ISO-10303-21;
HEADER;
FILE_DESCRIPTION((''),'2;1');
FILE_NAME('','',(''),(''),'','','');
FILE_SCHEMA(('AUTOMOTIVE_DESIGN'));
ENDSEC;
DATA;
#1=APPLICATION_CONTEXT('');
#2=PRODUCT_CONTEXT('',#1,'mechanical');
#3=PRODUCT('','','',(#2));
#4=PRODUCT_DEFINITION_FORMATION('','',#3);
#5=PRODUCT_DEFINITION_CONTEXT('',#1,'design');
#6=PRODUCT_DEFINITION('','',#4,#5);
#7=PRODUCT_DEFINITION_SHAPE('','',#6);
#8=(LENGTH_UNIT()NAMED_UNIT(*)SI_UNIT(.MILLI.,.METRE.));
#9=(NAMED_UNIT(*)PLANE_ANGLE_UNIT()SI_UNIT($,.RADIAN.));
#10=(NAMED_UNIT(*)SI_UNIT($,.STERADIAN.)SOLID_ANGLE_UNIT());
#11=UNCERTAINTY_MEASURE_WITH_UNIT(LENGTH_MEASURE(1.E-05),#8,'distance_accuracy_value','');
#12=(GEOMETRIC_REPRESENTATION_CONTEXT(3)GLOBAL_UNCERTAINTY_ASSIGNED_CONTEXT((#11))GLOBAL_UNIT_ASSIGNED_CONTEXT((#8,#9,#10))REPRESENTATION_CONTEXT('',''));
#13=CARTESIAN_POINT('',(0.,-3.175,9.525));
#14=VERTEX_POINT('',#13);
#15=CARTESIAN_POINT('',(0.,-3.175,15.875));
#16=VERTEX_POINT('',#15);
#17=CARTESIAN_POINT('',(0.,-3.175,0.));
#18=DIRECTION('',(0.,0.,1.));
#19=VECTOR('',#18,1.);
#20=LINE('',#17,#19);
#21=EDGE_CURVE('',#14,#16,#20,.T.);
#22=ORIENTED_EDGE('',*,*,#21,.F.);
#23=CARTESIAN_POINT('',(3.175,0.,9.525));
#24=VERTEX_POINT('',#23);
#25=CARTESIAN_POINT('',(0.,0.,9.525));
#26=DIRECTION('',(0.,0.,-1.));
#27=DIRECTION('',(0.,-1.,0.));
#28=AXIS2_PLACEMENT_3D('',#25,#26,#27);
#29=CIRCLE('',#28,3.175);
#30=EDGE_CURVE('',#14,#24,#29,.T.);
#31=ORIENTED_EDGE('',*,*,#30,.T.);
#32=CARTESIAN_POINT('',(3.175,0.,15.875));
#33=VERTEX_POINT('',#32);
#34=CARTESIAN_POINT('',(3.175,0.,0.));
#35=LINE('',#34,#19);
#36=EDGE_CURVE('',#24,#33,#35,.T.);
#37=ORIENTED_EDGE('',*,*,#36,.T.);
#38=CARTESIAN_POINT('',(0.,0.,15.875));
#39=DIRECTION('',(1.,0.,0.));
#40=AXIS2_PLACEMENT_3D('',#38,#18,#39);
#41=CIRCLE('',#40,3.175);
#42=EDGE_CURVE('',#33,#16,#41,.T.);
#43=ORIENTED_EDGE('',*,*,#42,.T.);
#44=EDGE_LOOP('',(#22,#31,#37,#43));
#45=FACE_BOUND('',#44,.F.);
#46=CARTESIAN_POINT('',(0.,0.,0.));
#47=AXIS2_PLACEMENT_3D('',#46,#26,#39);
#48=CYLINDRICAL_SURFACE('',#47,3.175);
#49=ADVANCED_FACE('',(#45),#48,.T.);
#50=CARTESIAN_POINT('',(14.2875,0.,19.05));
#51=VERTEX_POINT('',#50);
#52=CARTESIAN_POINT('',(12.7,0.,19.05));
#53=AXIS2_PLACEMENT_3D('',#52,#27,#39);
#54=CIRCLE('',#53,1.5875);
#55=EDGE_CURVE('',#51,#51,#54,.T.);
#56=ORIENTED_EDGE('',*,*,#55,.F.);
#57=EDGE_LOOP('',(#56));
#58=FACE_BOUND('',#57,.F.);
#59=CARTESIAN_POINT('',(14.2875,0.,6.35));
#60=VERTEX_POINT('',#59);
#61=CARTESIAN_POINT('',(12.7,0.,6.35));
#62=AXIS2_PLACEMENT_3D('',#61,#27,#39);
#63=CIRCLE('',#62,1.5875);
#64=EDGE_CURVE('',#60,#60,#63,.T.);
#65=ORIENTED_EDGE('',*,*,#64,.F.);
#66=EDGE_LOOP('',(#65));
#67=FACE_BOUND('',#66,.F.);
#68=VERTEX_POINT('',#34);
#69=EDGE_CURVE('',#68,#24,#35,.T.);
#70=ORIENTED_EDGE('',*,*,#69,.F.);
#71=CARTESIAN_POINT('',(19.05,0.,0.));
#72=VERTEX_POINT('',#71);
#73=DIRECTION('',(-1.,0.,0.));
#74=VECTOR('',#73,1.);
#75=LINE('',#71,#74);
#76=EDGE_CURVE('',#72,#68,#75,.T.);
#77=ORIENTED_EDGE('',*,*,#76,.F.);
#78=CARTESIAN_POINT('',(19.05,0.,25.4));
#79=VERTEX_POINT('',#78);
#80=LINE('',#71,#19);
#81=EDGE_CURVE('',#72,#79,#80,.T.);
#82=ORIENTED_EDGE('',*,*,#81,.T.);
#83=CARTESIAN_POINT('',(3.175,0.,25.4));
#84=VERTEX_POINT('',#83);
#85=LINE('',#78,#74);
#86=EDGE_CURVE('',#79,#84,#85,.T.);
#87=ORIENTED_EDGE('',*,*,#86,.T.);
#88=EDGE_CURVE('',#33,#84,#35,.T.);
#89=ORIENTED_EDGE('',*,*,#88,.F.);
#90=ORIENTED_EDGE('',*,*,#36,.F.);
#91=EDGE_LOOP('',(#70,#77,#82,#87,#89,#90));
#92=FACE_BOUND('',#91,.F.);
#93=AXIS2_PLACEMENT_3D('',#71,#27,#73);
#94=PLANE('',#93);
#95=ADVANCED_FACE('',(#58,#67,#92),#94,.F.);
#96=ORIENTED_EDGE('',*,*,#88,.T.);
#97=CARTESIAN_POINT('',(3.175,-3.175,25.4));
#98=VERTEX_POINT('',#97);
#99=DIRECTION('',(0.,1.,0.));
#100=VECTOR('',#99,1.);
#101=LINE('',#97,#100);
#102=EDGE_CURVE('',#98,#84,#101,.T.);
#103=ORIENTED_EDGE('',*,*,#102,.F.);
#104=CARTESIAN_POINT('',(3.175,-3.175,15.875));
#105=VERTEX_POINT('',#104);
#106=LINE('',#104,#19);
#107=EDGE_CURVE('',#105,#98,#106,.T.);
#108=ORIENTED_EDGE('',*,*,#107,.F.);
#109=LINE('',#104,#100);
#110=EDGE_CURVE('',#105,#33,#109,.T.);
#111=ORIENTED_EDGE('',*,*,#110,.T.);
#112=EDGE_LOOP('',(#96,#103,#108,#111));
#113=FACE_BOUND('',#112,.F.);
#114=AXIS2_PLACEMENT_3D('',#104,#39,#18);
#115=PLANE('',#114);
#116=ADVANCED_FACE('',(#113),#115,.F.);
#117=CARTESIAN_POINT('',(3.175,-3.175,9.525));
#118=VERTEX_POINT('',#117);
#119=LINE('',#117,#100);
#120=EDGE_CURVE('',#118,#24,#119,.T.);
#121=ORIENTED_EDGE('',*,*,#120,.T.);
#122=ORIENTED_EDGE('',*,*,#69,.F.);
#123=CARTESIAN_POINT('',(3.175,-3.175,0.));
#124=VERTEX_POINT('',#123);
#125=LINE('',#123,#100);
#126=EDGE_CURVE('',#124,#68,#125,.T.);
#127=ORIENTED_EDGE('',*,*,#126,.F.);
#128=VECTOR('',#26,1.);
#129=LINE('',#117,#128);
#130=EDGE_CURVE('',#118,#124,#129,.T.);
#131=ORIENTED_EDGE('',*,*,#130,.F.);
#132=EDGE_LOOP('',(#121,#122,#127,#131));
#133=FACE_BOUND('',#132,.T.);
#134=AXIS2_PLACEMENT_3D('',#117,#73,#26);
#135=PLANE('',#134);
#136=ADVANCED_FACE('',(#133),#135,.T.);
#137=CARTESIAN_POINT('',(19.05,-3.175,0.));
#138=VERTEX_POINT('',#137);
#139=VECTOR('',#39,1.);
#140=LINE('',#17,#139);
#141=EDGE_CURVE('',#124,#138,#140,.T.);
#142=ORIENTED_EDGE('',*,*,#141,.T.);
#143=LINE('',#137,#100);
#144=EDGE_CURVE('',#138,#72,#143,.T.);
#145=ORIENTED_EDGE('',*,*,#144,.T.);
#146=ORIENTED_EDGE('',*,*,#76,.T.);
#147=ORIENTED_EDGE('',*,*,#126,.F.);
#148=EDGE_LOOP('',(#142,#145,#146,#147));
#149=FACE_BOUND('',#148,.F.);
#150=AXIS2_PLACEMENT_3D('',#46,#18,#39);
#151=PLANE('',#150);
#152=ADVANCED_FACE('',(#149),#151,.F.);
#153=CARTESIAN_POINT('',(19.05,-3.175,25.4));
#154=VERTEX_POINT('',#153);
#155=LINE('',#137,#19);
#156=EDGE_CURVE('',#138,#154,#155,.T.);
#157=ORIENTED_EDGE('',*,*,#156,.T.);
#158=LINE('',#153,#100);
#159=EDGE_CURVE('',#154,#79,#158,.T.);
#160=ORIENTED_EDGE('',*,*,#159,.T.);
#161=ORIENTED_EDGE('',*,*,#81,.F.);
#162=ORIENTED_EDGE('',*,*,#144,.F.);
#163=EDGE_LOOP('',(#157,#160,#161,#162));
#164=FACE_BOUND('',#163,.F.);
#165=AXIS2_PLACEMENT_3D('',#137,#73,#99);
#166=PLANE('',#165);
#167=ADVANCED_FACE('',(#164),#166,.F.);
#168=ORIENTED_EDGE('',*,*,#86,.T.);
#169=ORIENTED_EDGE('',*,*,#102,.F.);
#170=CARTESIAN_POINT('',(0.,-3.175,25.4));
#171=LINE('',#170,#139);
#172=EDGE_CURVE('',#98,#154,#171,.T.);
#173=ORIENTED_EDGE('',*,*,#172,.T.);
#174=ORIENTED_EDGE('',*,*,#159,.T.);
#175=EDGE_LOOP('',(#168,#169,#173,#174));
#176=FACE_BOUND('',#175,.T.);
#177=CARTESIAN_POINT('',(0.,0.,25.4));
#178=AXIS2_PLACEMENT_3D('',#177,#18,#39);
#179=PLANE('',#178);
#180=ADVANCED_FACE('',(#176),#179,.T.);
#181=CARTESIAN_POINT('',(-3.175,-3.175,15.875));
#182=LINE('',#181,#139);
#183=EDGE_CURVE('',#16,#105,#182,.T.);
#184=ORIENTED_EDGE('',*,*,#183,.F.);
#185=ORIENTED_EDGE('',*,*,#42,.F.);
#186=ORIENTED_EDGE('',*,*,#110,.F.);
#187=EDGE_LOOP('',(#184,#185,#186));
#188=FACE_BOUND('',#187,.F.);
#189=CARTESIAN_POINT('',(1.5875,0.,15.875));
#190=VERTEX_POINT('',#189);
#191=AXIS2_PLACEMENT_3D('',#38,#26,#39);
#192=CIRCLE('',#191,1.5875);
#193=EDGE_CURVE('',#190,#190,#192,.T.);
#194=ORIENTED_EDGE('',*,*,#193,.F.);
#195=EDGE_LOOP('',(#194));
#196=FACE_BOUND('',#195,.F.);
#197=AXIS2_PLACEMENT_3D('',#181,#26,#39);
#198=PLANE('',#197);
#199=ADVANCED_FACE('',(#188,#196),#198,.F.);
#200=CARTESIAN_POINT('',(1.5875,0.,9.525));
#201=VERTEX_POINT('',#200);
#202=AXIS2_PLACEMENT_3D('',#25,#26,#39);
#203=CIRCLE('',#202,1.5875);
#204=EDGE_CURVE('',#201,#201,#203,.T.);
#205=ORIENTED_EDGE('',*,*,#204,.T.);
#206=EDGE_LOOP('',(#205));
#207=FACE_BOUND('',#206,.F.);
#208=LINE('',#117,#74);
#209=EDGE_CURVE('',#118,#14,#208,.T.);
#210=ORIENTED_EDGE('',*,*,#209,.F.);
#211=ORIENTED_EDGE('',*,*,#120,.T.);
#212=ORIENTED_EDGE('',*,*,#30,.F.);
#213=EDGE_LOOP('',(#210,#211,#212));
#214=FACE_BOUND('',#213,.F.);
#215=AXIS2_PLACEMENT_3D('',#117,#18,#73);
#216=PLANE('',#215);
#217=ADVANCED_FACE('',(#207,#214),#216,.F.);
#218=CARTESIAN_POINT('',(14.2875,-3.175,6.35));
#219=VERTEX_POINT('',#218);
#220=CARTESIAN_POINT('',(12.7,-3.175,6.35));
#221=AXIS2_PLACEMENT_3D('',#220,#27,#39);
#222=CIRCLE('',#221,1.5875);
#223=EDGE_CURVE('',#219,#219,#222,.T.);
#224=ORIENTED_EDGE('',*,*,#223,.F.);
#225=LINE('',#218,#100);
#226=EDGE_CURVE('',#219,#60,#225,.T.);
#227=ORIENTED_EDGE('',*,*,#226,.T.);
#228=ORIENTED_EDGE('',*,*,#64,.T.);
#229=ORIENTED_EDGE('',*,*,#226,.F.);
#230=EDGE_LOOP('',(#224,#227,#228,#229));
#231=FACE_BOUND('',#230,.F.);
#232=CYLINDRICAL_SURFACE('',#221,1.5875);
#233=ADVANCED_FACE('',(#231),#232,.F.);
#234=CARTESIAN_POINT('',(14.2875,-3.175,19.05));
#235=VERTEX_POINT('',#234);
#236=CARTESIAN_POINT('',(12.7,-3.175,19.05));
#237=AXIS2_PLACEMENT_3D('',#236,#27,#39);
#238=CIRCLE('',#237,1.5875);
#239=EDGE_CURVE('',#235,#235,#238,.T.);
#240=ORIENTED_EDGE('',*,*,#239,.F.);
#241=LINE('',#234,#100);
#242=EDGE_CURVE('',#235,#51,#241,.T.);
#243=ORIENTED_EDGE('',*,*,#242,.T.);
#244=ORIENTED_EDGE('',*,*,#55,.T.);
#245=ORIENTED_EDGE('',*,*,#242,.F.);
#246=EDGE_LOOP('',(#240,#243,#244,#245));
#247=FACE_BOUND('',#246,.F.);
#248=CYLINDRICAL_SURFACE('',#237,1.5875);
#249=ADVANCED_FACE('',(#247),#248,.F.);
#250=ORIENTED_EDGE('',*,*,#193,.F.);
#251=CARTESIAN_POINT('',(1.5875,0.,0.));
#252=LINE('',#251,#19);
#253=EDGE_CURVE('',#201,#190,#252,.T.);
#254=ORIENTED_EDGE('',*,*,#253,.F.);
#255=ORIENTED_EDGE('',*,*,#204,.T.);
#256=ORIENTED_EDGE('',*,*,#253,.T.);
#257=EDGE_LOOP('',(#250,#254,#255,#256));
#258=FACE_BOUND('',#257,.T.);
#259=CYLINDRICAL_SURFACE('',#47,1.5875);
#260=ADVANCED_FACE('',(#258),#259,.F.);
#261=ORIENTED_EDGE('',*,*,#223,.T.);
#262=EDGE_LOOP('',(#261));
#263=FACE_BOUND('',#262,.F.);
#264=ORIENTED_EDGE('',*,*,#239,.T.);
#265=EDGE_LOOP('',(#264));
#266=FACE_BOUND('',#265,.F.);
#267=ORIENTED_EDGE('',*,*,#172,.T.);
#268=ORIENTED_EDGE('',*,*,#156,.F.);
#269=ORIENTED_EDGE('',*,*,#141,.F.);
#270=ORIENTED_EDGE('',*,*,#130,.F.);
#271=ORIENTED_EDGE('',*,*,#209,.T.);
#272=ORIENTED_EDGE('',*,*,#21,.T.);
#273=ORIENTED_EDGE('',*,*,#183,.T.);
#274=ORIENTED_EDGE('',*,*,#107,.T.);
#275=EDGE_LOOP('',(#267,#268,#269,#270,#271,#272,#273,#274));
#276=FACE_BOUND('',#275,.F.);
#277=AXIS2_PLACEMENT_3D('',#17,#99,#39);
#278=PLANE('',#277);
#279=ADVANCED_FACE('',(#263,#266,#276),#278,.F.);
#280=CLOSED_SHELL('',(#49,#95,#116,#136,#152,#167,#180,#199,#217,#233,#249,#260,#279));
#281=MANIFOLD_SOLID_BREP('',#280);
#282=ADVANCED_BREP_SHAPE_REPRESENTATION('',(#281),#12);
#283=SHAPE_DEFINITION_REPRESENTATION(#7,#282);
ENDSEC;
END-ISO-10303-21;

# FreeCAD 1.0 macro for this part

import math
import FreeCAD as App
import Part
import Sketcher

V = App.Vector
Q = App.Units.Quantity


def add_polygon(sketch, points):
    """Adds a closed chain of lines whose ends are joined by coincident constraints."""
    first, n = sketch.GeometryCount, len(points)
    for a, b in zip(points, points[1:] + points[:1]):
        sketch.addGeometry(Part.LineSegment(App.Vector(*a, 0), App.Vector(*b, 0)), False)
    for i in range(n):
        sketch.addConstraint(Sketcher.Constraint("Coincident", first + i, 2, first + (i + 1) % n, 1))

doc = App.newDocument("Part")
body = doc.addObject("PartDesign::Body", "Body")

sketch1 = body.newObject("Sketcher::SketchObject", "Sketch")
sketch1.AttachmentSupport = (doc.getObject("XY_Plane"), [""])
sketch1.MapMode = "FlatFace"
sketch1.addGeometry([
    Part.ArcOfCircle(Part.Circle(V(0, 0, 0), V(0, 0, 1), 3.175), math.radians(0), math.radians(270)),
    Part.LineSegment(V(0, -3.175, 0), V(19.05, -3.175, 0)),
    Part.LineSegment(V(19.05, -3.175, 0), V(19.05, 0, 0)),
    Part.LineSegment(V(19.05, 0, 0), V(3.175, 0, 0)),
    Part.Circle(V(0, 0, 0), V(0, 0, 1), 1.5875),
], False)
sketch1.addConstraint([
    Sketcher.Constraint("Tangent", 0, 2, 1, 1),
    Sketcher.Constraint("Coincident", 1, 2, 2, 1),
    Sketcher.Constraint("Coincident", 2, 2, 3, 1),
    Sketcher.Constraint("Coincident", 3, 2, 0, 1),
    Sketcher.Constraint("Horizontal", 1),
    Sketcher.Constraint("Vertical", 2),
    Sketcher.Constraint("Horizontal", 3),
    Sketcher.Constraint("Coincident", 0, 3, -1, 1),
    Sketcher.Constraint("Coincident", 4, 3, -1, 1),
    Sketcher.Constraint("PointOnObject", 2, 2, -1),
    Sketcher.Constraint("Diameter", 4, Q("0.125 in")),
    Sketcher.Constraint("Radius", 0, Q("0.125 in")),
    Sketcher.Constraint("DistanceX", 1, 1, 1, 2, Q("0.75 in")),
])
pad1 = body.newObject("PartDesign::Pad", "Pad")
pad1.Profile = sketch1
pad1.Length = Q("1 in")

sketch2 = body.newObject("Sketcher::SketchObject", "Sketch001")
sketch2.AttachmentSupport = (doc.getObject("XZ_Plane"), [""])
sketch2.MapMode = "FlatFace"
sketch2.AttachmentOffset = App.Placement(V(0, 0, 0.125 * 25.4), App.Rotation())
add_polygon(sketch2, [(3.175, 15.875), (3.175, 25.4), (-3.175, 25.4), (-3.175, 15.875)])
add_polygon(sketch2, [(3.175, 0), (3.175, 9.525), (-3.175, 9.525), (-3.175, 0)])
sketch2.addGeometry(Part.Circle(V(12.7, 19.05, 0), V(0, 0, 1), 1.5875), False)
sketch2.addGeometry(Part.Circle(V(12.7, 6.35, 0), V(0, 0, 1), 1.5875), False)
sketch2.addConstraint([
    Sketcher.Constraint("Vertical", 0),
    Sketcher.Constraint("Horizontal", 1),
    Sketcher.Constraint("Vertical", 2),
    Sketcher.Constraint("Horizontal", 3),
    Sketcher.Constraint("Vertical", 4),
    Sketcher.Constraint("Horizontal", 5),
    Sketcher.Constraint("Vertical", 6),
    Sketcher.Constraint("Horizontal", 7),
    Sketcher.Constraint("Equal", 8, 9),
    Sketcher.Constraint("Symmetric", 6, 2, 7, 2, -1, 1),
    Sketcher.Constraint("Vertical", 8, 3, 9, 3),
    Sketcher.Constraint("Vertical", 3, 2, 4, 2),
    Sketcher.Constraint("Vertical", 2, 2, 5, 2),
    Sketcher.Constraint("Equal", 2, 4),
    Sketcher.Constraint("Diameter", 8, Q("0.125 in")),
    Sketcher.Constraint("DistanceX", 1, 2, 1, 1, Q("0.25 in")),
    Sketcher.Constraint("DistanceX", -1, 1, 8, 3, Q("0.5 in")),
    Sketcher.Constraint("DistanceY", 9, 3, 8, 3, Q("0.5 in")),
    Sketcher.Constraint("DistanceY", 0, 1, 0, 2, Q("0.375 in")),
    Sketcher.Constraint("DistanceY", -1, 1, 9, 3, Q("0.25 in")),
    Sketcher.Constraint("DistanceY", 8, 3, 0, 2, Q("0.25 in")),
])
pocket1 = body.newObject("PartDesign::Pocket", "Pocket")
pocket1.Profile = sketch2
pocket1.Length = Q("1 in")

doc.recompute()
